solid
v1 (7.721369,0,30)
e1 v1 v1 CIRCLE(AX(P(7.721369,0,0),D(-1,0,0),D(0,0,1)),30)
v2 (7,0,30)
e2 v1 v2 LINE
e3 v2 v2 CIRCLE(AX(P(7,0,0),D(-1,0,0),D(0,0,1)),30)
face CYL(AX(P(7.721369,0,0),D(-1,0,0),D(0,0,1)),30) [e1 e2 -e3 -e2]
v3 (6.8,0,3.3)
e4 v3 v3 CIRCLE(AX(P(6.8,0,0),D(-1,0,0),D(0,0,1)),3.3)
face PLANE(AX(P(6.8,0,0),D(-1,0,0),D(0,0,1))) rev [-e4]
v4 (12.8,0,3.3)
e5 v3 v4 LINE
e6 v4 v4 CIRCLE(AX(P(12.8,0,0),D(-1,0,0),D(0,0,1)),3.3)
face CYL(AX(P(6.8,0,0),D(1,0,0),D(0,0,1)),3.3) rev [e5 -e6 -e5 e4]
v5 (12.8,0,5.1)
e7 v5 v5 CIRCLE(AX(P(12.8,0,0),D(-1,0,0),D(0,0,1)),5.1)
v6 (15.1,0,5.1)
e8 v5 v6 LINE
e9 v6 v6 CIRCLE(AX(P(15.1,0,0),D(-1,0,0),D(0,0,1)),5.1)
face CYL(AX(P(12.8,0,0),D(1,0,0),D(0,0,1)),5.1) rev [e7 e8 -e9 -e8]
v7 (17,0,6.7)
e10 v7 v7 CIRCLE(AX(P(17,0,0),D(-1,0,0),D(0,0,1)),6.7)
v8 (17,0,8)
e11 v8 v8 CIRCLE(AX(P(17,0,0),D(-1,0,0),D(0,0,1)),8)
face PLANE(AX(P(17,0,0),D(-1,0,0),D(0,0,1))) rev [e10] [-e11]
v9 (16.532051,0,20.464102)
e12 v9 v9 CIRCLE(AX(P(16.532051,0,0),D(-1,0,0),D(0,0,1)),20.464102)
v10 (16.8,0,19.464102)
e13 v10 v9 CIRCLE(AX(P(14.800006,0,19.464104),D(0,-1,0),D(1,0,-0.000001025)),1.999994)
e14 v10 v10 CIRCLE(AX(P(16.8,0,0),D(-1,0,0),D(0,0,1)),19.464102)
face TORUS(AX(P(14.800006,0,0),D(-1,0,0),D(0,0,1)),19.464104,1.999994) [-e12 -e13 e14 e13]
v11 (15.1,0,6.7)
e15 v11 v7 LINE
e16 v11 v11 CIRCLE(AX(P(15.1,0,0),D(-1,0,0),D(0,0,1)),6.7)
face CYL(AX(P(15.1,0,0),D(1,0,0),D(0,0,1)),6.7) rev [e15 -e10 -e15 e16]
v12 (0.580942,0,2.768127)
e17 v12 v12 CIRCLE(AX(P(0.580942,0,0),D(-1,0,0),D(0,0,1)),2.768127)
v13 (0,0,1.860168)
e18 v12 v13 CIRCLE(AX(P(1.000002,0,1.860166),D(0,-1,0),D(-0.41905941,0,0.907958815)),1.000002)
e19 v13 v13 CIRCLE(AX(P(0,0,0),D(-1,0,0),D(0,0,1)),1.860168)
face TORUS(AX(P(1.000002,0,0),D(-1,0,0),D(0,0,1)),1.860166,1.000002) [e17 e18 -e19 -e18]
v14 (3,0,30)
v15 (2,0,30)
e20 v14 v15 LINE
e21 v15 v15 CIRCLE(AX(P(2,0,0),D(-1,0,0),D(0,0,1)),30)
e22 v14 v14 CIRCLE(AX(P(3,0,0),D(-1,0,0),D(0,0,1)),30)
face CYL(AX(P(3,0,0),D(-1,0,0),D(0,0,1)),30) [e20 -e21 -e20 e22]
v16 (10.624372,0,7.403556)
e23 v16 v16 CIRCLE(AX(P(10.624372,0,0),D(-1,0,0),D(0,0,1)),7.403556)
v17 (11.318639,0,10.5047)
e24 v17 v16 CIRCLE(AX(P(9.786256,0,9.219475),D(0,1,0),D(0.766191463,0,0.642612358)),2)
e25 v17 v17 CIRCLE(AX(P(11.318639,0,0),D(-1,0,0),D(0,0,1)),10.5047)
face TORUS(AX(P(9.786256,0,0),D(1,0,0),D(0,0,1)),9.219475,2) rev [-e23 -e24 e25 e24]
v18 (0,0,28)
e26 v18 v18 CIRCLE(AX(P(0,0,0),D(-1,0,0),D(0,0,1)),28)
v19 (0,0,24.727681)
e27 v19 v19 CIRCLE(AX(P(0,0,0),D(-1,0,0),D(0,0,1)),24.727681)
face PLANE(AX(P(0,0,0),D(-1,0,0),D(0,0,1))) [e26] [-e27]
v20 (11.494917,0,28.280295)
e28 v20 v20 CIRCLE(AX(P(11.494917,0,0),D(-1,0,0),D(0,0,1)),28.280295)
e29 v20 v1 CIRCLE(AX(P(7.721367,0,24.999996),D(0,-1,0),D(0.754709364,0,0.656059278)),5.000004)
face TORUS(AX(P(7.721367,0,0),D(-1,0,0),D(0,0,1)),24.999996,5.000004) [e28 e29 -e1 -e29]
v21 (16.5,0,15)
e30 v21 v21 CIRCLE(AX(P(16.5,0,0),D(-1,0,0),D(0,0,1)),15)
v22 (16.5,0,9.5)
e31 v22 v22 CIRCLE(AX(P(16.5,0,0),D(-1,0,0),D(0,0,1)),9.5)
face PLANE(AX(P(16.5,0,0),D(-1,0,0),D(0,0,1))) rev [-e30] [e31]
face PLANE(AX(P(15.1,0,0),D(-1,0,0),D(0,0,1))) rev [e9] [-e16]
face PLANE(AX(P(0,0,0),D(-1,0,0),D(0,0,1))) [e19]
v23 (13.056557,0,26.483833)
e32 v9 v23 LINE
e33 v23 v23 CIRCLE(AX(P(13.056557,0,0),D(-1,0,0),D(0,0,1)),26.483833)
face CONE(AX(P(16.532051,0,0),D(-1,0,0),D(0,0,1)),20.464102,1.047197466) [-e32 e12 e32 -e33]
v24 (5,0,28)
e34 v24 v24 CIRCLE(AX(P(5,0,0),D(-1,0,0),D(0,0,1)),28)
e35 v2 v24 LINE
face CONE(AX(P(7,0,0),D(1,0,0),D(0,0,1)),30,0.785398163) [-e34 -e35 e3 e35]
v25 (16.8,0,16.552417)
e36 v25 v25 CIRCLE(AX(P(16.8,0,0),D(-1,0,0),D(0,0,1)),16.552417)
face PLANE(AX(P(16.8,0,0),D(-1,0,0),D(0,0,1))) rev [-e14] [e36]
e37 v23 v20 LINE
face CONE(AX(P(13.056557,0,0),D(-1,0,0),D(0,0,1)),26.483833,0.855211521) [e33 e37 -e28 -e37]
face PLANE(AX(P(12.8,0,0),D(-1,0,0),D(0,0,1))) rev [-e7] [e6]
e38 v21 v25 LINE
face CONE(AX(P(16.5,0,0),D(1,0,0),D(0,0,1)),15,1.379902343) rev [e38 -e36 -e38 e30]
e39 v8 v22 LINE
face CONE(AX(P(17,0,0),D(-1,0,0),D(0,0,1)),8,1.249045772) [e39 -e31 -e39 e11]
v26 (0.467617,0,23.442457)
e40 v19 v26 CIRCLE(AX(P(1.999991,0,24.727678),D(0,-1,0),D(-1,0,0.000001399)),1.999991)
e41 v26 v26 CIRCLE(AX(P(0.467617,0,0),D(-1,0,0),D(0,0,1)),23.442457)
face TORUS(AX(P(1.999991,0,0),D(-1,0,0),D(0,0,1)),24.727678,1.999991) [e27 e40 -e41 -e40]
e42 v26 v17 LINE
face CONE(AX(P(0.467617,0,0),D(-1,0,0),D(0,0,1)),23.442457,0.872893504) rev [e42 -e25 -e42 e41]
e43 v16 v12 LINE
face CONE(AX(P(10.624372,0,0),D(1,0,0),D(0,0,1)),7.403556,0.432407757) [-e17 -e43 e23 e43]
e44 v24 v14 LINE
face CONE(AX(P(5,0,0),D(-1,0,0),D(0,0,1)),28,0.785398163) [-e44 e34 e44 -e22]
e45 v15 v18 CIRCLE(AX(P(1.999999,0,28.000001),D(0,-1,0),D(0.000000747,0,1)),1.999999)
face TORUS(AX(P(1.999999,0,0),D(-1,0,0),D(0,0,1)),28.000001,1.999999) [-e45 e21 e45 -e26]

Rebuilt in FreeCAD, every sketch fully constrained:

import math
import FreeCAD as App
import Part
import Sketcher

V = App.Vector
Q = App.Units.Quantity

doc = App.newDocument("Part")
body = doc.addObject("PartDesign::Body", "Body")

# Sketch on XZ plane
sketch1 = body.newObject("Sketcher::SketchObject", "Sketch")
sketch1.AttachmentSupport = (doc.getObject("XZ_Plane"), [""])
sketch1.MapMode = "FlatFace"
sketch1.addGeometry(Part.LineSegment(V(3, 30, 0), V(2, 30, 0)), False)
sketch1.addGeometry(Part.ArcOfCircle(Part.Circle(V(2, 28, 0), V(0, 0, 1), 2), math.radians(90), math.radians(180)), False)
sketch1.addGeometry(Part.LineSegment(V(0, 28, 0), V(0, 24.7, 0)), False)
sketch1.addGeometry(Part.ArcOfCircle(Part.Circle(V(2, 24.7, 0), V(0, 0, 1), 2), math.radians(180), math.radians(220)), False)
sketch1.addGeometry(Part.LineSegment(V(0.5, 23.4, 0), V(11.3, 10.5, 0)), False)
sketch1.addGeometry(Part.ArcOfCircle(Part.Circle(V(9.8, 9.2, 0), V(0, 0, 1), 2), math.radians(-65), math.radians(40)), False)
sketch1.addGeometry(Part.LineSegment(V(10.6, 7.4, 0), V(0.6, 2.8, 0)), False)
sketch1.addGeometry(Part.ArcOfCircle(Part.Circle(V(1, 1.9, 0), V(0, 0, 1), 1), math.radians(115), math.radians(180)), False)
sketch1.addGeometry(Part.LineSegment(V(0, 1.9, 0), V(0, 0, 0)), False)
sketch1.addGeometry(Part.LineSegment(V(0, 0, 0), V(6.8, 0, 0)), False)
sketch1.addGeometry(Part.LineSegment(V(6.8, 0, 0), V(6.8, 3.3, 0)), False)
sketch1.addGeometry(Part.LineSegment(V(6.8, 3.3, 0), V(12.8, 3.3, 0)), False)
sketch1.addGeometry(Part.LineSegment(V(12.8, 3.3, 0), V(12.8, 5.1, 0)), False)
sketch1.addGeometry(Part.LineSegment(V(12.8, 5.1, 0), V(15.1, 5.1, 0)), False)
sketch1.addGeometry(Part.LineSegment(V(15.1, 5.1, 0), V(15.1, 6.7, 0)), False)
sketch1.addGeometry(Part.LineSegment(V(15.1, 6.7, 0), V(17, 6.7, 0)), False)
sketch1.addGeometry(Part.LineSegment(V(17, 6.7, 0), V(17, 8, 0)), False)
sketch1.addGeometry(Part.LineSegment(V(17, 8, 0), V(16.5, 9.5, 0)), False)
sketch1.addGeometry(Part.LineSegment(V(16.5, 9.5, 0), V(16.5, 15, 0)), False)
sketch1.addGeometry(Part.LineSegment(V(16.5, 15, 0), V(16.8, 16.6, 0)), False)
sketch1.addGeometry(Part.LineSegment(V(16.8, 16.6, 0), V(16.8, 19.5, 0)), False)
sketch1.addGeometry(Part.ArcOfCircle(Part.Circle(V(14.8, 19.5, 0), V(0, 0, 1), 2), math.radians(0), math.radians(30)), False)
sketch1.addGeometry(Part.LineSegment(V(16.5, 20.5, 0), V(13.1, 26.5, 0)), False)
sketch1.addGeometry(Part.LineSegment(V(13.1, 26.5, 0), V(11.5, 28.3, 0)), False)
sketch1.addGeometry(Part.ArcOfCircle(Part.Circle(V(7.7, 25, 0), V(0, 0, 1), 5), math.radians(41), math.radians(90)), False)
sketch1.addGeometry(Part.LineSegment(V(7.7, 30, 0), V(7, 30, 0)), False)
sketch1.addGeometry(Part.LineSegment(V(7, 30, 0), V(5, 28, 0)), False)
sketch1.addGeometry(Part.LineSegment(V(5, 28, 0), V(3, 30, 0)), False)
sketch1.addConstraint(Sketcher.Constraint("Tangent", 0, 2, 1, 1))
sketch1.addConstraint(Sketcher.Constraint("Tangent", 1, 2, 2, 1))
sketch1.addConstraint(Sketcher.Constraint("Tangent", 2, 2, 3, 1))
sketch1.addConstraint(Sketcher.Constraint("Tangent", 3, 2, 4, 1))
sketch1.addConstraint(Sketcher.Constraint("Tangent", 4, 2, 5, 2))
sketch1.addConstraint(Sketcher.Constraint("Tangent", 5, 1, 6, 1))
sketch1.addConstraint(Sketcher.Constraint("Tangent", 6, 2, 7, 1))
sketch1.addConstraint(Sketcher.Constraint("Coincident", 7, 2, 8, 1))
sketch1.addConstraint(Sketcher.Constraint("Coincident", 8, 2, 9, 1))
sketch1.addConstraint(Sketcher.Constraint("Coincident", 9, 2, 10, 1))
sketch1.addConstraint(Sketcher.Constraint("Coincident", 10, 2, 11, 1))
sketch1.addConstraint(Sketcher.Constraint("Coincident", 11, 2, 12, 1))
sketch1.addConstraint(Sketcher.Constraint("Coincident", 12, 2, 13, 1))
sketch1.addConstraint(Sketcher.Constraint("Coincident", 13, 2, 14, 1))
sketch1.addConstraint(Sketcher.Constraint("Coincident", 14, 2, 15, 1))
sketch1.addConstraint(Sketcher.Constraint("Coincident", 15, 2, 16, 1))
sketch1.addConstraint(Sketcher.Constraint("Coincident", 16, 2, 17, 1))
sketch1.addConstraint(Sketcher.Constraint("Coincident", 17, 2, 18, 1))
sketch1.addConstraint(Sketcher.Constraint("Coincident", 18, 2, 19, 1))
sketch1.addConstraint(Sketcher.Constraint("Coincident", 19, 2, 20, 1))
sketch1.addConstraint(Sketcher.Constraint("Tangent", 20, 2, 21, 1))
sketch1.addConstraint(Sketcher.Constraint("Tangent", 21, 2, 22, 1))
sketch1.addConstraint(Sketcher.Constraint("Coincident", 22, 2, 23, 1))
sketch1.addConstraint(Sketcher.Constraint("Tangent", 23, 2, 24, 1))
sketch1.addConstraint(Sketcher.Constraint("Tangent", 24, 2, 25, 1))
sketch1.addConstraint(Sketcher.Constraint("Coincident", 25, 2, 26, 1))
sketch1.addConstraint(Sketcher.Constraint("Coincident", 26, 2, 27, 1))
sketch1.addConstraint(Sketcher.Constraint("Coincident", 27, 2, 0, 1))
sketch1.addConstraint(Sketcher.Constraint("Horizontal", 0))
sketch1.addConstraint(Sketcher.Constraint("Vertical", 2))
sketch1.addConstraint(Sketcher.Constraint("Vertical", 8))
sketch1.addConstraint(Sketcher.Constraint("Horizontal", 9))
sketch1.addConstraint(Sketcher.Constraint("Vertical", 10))
sketch1.addConstraint(Sketcher.Constraint("Horizontal", 11))
sketch1.addConstraint(Sketcher.Constraint("Vertical", 12))
sketch1.addConstraint(Sketcher.Constraint("Horizontal", 13))
sketch1.addConstraint(Sketcher.Constraint("Vertical", 14))
sketch1.addConstraint(Sketcher.Constraint("Horizontal", 15))
sketch1.addConstraint(Sketcher.Constraint("Vertical", 16))
sketch1.addConstraint(Sketcher.Constraint("Vertical", 18))
sketch1.addConstraint(Sketcher.Constraint("Vertical", 20))
sketch1.addConstraint(Sketcher.Constraint("Horizontal", 25))
sketch1.addConstraint(Sketcher.Constraint("Coincident", 8, 2, -1, 1))
sketch1.addConstraint(Sketcher.Constraint("Equal", 1, 5))
sketch1.addConstraint(Sketcher.Constraint("PointOnObject", 1, 2, -2))
sketch1.addConstraint(Sketcher.Constraint("Perpendicular", 26, 27))
sketch1.addConstraint(Sketcher.Constraint("Horizontal", 0, 2, 24, 2))
sketch1.addConstraint(Sketcher.Constraint("Horizontal", 1, 2, 26, 2))
sketch1.addConstraint(Sketcher.Constraint("Equal", 17, 19))
sketch1.addConstraint(Sketcher.Constraint("Equal", 26, 27))
sketch1.addConstraint(Sketcher.Constraint("Radius", 1, 1.999999))
sketch1.addConstraint(Sketcher.Constraint("DistanceX", 0, 2, 0, 1, 1.0))
sketch1.addConstraint(Sketcher.Constraint("DistanceX", 11, 1, 11, 2, 6.0))
sketch1.addConstraint(Sketcher.Constraint("Angle", 22, Q("120.000005 deg")))
sketch1.addConstraint(Sketcher.Constraint("Angle", 23, Q("130.999989 deg")))
sketch1.addConstraint(Sketcher.Constraint("DistanceX", 9, 1, 9, 2, 6.8))
sketch1.addConstraint(Sketcher.Constraint("DistanceX", 13, 1, 13, 2, 2.3))
sketch1.addConstraint(Sketcher.Constraint("DistanceX", 15, 1, 15, 2, 1.9))
sketch1.addConstraint(Sketcher.Constraint("DistanceY", 10, 1, 10, 2, 3.3))
sketch1.addConstraint(Sketcher.Constraint("DistanceY", 12, 1, 12, 2, 1.8))
sketch1.addConstraint(Sketcher.Constraint("DistanceY", 14, 1, 14, 2, 1.6))
sketch1.addConstraint(Sketcher.Constraint("DistanceY", 16, 1, 16, 2, 1.3))
sketch1.addConstraint(Sketcher.Constraint("DistanceY", 18, 1, 18, 2, 5.5))
sketch1.addConstraint(Sketcher.Constraint("DistanceY", -1, 1, 1, 3, 28.000001))
sketch1.addConstraint(Sketcher.Constraint("DistanceY", -1, 1, 18, 2, 15.0))
sketch1.addConstraint(Sketcher.Constraint("DistanceY", 20, 2, 21, 2, 1.0))
sketch1.addConstraint(Sketcher.Constraint("DistanceX", -1, 1, 17, 2, 16.5))
sketch1.addConstraint(Sketcher.Constraint("DistanceX", -1, 1, 19, 2, 16.8))
sketch1.addConstraint(Sketcher.Constraint("Radius", 3, 1.999991))
sketch1.addConstraint(Sketcher.Constraint("Radius", 7, 1.000002))
sketch1.addConstraint(Sketcher.Constraint("Radius", 24, 5.000004))
sketch1.addConstraint(Sketcher.Constraint("Distance", 4, 16.8858))
sketch1.addConstraint(Sketcher.Constraint("DistanceX", 25, 2, 25, 1, 0.721369))
sketch1.addConstraint(Sketcher.Constraint("DistanceY", 2, 2, 2, 1, 3.272319))
sketch1.addConstraint(Sketcher.Constraint("DistanceY", -1, 1, 4, 2, 10.5047))
sketch1.addConstraint(Sketcher.Constraint("Distance", 6, 11.061541))
sketch1.addConstraint(Sketcher.Constraint("DistanceY", 8, 2, 8, 1, 1.860168))
sketch1.addConstraint(Sketcher.Constraint("DistanceY", 20, 1, 20, 2, 2.911685))
revolution = body.newObject("PartDesign::Revolution", "Revolution")
revolution.Profile = sketch1
revolution.ReferenceAxis = (sketch1, ["H_Axis"])
revolution.Angle = 360

doc.recompute()
